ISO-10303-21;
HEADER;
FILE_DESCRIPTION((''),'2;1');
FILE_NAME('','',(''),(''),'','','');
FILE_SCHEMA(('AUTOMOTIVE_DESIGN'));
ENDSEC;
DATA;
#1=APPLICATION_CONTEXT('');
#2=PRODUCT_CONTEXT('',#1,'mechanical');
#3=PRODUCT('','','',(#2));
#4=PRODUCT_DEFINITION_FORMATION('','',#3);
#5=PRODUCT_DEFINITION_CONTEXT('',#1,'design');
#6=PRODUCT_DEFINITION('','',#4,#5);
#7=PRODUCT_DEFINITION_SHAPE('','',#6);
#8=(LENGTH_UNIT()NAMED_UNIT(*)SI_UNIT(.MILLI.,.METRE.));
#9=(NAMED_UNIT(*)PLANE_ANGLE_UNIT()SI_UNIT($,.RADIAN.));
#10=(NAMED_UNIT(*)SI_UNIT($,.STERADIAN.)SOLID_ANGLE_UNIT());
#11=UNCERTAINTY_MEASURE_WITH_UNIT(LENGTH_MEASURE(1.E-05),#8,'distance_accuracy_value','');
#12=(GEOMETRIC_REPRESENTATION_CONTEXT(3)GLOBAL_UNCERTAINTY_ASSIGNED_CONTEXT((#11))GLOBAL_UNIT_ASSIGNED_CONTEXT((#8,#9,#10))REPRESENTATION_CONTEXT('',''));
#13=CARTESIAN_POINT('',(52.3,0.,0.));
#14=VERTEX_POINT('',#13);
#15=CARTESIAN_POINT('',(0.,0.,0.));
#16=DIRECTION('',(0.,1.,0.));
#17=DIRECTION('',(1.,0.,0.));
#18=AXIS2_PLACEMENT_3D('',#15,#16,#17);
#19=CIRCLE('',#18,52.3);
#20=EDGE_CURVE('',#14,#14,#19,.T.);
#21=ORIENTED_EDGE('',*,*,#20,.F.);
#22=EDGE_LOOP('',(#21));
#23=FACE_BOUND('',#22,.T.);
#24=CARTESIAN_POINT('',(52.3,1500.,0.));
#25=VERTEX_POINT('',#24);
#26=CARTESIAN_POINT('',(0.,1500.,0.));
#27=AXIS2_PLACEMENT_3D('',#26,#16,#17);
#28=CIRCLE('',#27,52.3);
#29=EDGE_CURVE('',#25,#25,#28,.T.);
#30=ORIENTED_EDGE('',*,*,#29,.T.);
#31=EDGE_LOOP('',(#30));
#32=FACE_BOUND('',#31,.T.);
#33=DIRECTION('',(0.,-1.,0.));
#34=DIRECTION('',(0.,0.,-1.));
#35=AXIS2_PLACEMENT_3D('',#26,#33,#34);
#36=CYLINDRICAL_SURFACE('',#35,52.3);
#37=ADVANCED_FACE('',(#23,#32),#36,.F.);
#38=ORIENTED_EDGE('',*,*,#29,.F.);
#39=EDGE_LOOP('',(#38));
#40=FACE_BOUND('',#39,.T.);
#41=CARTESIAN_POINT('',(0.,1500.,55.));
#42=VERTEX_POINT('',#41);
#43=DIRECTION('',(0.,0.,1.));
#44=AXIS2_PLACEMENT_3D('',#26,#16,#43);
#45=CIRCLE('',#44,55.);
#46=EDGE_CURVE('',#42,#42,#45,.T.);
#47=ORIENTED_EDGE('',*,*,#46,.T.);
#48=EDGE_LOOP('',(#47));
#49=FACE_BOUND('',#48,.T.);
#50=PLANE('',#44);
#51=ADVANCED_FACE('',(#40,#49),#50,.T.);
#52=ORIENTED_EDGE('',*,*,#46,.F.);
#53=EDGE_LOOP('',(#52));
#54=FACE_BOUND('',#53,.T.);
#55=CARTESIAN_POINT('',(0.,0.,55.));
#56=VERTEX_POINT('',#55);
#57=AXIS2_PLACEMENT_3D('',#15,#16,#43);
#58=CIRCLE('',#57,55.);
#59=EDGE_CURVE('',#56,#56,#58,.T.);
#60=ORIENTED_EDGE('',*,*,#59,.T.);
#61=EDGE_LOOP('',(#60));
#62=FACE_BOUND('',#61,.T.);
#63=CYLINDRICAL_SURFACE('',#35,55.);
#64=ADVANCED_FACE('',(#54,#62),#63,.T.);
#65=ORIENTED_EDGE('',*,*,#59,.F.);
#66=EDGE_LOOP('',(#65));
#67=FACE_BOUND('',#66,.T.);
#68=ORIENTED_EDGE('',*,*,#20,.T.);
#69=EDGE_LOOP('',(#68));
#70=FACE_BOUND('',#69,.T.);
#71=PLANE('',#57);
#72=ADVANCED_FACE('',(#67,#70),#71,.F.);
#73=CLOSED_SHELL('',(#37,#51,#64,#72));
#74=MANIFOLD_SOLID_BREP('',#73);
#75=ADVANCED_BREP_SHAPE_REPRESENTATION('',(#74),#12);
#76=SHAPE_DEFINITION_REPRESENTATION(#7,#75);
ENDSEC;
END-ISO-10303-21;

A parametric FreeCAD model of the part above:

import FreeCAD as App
import Part
import Sketcher

V = App.Vector

doc = App.newDocument("Part")
body = doc.addObject("PartDesign::Body", "Body")

# Sketch on XZ plane
sketch1 = body.newObject("Sketcher::SketchObject", "Sketch")
sketch1.AttachmentSupport = (doc.getObject("XZ_Plane"), [""])
sketch1.MapMode = "FlatFace"
sketch1.addGeometry([
    Part.Circle(V(0, 0, 0), V(0, 0, 1), 55),
    Part.Circle(V(0, 0, 0), V(0, 0, 1), 52.3),
], False)
sketch1.addConstraint([
    Sketcher.Constraint("Coincident", 0, 3, -1, 1),
    Sketcher.Constraint("Coincident", 1, 3, -1, 1),
    Sketcher.Constraint("Diameter", 0, 110.0),
    Sketcher.Constraint("Diameter", 1, 104.6),
])
pad1 = body.newObject("PartDesign::Pad", "Pad")
pad1.Profile = sketch1
pad1.Length = 1500
pad1.Reversed = True

doc.recompute()
